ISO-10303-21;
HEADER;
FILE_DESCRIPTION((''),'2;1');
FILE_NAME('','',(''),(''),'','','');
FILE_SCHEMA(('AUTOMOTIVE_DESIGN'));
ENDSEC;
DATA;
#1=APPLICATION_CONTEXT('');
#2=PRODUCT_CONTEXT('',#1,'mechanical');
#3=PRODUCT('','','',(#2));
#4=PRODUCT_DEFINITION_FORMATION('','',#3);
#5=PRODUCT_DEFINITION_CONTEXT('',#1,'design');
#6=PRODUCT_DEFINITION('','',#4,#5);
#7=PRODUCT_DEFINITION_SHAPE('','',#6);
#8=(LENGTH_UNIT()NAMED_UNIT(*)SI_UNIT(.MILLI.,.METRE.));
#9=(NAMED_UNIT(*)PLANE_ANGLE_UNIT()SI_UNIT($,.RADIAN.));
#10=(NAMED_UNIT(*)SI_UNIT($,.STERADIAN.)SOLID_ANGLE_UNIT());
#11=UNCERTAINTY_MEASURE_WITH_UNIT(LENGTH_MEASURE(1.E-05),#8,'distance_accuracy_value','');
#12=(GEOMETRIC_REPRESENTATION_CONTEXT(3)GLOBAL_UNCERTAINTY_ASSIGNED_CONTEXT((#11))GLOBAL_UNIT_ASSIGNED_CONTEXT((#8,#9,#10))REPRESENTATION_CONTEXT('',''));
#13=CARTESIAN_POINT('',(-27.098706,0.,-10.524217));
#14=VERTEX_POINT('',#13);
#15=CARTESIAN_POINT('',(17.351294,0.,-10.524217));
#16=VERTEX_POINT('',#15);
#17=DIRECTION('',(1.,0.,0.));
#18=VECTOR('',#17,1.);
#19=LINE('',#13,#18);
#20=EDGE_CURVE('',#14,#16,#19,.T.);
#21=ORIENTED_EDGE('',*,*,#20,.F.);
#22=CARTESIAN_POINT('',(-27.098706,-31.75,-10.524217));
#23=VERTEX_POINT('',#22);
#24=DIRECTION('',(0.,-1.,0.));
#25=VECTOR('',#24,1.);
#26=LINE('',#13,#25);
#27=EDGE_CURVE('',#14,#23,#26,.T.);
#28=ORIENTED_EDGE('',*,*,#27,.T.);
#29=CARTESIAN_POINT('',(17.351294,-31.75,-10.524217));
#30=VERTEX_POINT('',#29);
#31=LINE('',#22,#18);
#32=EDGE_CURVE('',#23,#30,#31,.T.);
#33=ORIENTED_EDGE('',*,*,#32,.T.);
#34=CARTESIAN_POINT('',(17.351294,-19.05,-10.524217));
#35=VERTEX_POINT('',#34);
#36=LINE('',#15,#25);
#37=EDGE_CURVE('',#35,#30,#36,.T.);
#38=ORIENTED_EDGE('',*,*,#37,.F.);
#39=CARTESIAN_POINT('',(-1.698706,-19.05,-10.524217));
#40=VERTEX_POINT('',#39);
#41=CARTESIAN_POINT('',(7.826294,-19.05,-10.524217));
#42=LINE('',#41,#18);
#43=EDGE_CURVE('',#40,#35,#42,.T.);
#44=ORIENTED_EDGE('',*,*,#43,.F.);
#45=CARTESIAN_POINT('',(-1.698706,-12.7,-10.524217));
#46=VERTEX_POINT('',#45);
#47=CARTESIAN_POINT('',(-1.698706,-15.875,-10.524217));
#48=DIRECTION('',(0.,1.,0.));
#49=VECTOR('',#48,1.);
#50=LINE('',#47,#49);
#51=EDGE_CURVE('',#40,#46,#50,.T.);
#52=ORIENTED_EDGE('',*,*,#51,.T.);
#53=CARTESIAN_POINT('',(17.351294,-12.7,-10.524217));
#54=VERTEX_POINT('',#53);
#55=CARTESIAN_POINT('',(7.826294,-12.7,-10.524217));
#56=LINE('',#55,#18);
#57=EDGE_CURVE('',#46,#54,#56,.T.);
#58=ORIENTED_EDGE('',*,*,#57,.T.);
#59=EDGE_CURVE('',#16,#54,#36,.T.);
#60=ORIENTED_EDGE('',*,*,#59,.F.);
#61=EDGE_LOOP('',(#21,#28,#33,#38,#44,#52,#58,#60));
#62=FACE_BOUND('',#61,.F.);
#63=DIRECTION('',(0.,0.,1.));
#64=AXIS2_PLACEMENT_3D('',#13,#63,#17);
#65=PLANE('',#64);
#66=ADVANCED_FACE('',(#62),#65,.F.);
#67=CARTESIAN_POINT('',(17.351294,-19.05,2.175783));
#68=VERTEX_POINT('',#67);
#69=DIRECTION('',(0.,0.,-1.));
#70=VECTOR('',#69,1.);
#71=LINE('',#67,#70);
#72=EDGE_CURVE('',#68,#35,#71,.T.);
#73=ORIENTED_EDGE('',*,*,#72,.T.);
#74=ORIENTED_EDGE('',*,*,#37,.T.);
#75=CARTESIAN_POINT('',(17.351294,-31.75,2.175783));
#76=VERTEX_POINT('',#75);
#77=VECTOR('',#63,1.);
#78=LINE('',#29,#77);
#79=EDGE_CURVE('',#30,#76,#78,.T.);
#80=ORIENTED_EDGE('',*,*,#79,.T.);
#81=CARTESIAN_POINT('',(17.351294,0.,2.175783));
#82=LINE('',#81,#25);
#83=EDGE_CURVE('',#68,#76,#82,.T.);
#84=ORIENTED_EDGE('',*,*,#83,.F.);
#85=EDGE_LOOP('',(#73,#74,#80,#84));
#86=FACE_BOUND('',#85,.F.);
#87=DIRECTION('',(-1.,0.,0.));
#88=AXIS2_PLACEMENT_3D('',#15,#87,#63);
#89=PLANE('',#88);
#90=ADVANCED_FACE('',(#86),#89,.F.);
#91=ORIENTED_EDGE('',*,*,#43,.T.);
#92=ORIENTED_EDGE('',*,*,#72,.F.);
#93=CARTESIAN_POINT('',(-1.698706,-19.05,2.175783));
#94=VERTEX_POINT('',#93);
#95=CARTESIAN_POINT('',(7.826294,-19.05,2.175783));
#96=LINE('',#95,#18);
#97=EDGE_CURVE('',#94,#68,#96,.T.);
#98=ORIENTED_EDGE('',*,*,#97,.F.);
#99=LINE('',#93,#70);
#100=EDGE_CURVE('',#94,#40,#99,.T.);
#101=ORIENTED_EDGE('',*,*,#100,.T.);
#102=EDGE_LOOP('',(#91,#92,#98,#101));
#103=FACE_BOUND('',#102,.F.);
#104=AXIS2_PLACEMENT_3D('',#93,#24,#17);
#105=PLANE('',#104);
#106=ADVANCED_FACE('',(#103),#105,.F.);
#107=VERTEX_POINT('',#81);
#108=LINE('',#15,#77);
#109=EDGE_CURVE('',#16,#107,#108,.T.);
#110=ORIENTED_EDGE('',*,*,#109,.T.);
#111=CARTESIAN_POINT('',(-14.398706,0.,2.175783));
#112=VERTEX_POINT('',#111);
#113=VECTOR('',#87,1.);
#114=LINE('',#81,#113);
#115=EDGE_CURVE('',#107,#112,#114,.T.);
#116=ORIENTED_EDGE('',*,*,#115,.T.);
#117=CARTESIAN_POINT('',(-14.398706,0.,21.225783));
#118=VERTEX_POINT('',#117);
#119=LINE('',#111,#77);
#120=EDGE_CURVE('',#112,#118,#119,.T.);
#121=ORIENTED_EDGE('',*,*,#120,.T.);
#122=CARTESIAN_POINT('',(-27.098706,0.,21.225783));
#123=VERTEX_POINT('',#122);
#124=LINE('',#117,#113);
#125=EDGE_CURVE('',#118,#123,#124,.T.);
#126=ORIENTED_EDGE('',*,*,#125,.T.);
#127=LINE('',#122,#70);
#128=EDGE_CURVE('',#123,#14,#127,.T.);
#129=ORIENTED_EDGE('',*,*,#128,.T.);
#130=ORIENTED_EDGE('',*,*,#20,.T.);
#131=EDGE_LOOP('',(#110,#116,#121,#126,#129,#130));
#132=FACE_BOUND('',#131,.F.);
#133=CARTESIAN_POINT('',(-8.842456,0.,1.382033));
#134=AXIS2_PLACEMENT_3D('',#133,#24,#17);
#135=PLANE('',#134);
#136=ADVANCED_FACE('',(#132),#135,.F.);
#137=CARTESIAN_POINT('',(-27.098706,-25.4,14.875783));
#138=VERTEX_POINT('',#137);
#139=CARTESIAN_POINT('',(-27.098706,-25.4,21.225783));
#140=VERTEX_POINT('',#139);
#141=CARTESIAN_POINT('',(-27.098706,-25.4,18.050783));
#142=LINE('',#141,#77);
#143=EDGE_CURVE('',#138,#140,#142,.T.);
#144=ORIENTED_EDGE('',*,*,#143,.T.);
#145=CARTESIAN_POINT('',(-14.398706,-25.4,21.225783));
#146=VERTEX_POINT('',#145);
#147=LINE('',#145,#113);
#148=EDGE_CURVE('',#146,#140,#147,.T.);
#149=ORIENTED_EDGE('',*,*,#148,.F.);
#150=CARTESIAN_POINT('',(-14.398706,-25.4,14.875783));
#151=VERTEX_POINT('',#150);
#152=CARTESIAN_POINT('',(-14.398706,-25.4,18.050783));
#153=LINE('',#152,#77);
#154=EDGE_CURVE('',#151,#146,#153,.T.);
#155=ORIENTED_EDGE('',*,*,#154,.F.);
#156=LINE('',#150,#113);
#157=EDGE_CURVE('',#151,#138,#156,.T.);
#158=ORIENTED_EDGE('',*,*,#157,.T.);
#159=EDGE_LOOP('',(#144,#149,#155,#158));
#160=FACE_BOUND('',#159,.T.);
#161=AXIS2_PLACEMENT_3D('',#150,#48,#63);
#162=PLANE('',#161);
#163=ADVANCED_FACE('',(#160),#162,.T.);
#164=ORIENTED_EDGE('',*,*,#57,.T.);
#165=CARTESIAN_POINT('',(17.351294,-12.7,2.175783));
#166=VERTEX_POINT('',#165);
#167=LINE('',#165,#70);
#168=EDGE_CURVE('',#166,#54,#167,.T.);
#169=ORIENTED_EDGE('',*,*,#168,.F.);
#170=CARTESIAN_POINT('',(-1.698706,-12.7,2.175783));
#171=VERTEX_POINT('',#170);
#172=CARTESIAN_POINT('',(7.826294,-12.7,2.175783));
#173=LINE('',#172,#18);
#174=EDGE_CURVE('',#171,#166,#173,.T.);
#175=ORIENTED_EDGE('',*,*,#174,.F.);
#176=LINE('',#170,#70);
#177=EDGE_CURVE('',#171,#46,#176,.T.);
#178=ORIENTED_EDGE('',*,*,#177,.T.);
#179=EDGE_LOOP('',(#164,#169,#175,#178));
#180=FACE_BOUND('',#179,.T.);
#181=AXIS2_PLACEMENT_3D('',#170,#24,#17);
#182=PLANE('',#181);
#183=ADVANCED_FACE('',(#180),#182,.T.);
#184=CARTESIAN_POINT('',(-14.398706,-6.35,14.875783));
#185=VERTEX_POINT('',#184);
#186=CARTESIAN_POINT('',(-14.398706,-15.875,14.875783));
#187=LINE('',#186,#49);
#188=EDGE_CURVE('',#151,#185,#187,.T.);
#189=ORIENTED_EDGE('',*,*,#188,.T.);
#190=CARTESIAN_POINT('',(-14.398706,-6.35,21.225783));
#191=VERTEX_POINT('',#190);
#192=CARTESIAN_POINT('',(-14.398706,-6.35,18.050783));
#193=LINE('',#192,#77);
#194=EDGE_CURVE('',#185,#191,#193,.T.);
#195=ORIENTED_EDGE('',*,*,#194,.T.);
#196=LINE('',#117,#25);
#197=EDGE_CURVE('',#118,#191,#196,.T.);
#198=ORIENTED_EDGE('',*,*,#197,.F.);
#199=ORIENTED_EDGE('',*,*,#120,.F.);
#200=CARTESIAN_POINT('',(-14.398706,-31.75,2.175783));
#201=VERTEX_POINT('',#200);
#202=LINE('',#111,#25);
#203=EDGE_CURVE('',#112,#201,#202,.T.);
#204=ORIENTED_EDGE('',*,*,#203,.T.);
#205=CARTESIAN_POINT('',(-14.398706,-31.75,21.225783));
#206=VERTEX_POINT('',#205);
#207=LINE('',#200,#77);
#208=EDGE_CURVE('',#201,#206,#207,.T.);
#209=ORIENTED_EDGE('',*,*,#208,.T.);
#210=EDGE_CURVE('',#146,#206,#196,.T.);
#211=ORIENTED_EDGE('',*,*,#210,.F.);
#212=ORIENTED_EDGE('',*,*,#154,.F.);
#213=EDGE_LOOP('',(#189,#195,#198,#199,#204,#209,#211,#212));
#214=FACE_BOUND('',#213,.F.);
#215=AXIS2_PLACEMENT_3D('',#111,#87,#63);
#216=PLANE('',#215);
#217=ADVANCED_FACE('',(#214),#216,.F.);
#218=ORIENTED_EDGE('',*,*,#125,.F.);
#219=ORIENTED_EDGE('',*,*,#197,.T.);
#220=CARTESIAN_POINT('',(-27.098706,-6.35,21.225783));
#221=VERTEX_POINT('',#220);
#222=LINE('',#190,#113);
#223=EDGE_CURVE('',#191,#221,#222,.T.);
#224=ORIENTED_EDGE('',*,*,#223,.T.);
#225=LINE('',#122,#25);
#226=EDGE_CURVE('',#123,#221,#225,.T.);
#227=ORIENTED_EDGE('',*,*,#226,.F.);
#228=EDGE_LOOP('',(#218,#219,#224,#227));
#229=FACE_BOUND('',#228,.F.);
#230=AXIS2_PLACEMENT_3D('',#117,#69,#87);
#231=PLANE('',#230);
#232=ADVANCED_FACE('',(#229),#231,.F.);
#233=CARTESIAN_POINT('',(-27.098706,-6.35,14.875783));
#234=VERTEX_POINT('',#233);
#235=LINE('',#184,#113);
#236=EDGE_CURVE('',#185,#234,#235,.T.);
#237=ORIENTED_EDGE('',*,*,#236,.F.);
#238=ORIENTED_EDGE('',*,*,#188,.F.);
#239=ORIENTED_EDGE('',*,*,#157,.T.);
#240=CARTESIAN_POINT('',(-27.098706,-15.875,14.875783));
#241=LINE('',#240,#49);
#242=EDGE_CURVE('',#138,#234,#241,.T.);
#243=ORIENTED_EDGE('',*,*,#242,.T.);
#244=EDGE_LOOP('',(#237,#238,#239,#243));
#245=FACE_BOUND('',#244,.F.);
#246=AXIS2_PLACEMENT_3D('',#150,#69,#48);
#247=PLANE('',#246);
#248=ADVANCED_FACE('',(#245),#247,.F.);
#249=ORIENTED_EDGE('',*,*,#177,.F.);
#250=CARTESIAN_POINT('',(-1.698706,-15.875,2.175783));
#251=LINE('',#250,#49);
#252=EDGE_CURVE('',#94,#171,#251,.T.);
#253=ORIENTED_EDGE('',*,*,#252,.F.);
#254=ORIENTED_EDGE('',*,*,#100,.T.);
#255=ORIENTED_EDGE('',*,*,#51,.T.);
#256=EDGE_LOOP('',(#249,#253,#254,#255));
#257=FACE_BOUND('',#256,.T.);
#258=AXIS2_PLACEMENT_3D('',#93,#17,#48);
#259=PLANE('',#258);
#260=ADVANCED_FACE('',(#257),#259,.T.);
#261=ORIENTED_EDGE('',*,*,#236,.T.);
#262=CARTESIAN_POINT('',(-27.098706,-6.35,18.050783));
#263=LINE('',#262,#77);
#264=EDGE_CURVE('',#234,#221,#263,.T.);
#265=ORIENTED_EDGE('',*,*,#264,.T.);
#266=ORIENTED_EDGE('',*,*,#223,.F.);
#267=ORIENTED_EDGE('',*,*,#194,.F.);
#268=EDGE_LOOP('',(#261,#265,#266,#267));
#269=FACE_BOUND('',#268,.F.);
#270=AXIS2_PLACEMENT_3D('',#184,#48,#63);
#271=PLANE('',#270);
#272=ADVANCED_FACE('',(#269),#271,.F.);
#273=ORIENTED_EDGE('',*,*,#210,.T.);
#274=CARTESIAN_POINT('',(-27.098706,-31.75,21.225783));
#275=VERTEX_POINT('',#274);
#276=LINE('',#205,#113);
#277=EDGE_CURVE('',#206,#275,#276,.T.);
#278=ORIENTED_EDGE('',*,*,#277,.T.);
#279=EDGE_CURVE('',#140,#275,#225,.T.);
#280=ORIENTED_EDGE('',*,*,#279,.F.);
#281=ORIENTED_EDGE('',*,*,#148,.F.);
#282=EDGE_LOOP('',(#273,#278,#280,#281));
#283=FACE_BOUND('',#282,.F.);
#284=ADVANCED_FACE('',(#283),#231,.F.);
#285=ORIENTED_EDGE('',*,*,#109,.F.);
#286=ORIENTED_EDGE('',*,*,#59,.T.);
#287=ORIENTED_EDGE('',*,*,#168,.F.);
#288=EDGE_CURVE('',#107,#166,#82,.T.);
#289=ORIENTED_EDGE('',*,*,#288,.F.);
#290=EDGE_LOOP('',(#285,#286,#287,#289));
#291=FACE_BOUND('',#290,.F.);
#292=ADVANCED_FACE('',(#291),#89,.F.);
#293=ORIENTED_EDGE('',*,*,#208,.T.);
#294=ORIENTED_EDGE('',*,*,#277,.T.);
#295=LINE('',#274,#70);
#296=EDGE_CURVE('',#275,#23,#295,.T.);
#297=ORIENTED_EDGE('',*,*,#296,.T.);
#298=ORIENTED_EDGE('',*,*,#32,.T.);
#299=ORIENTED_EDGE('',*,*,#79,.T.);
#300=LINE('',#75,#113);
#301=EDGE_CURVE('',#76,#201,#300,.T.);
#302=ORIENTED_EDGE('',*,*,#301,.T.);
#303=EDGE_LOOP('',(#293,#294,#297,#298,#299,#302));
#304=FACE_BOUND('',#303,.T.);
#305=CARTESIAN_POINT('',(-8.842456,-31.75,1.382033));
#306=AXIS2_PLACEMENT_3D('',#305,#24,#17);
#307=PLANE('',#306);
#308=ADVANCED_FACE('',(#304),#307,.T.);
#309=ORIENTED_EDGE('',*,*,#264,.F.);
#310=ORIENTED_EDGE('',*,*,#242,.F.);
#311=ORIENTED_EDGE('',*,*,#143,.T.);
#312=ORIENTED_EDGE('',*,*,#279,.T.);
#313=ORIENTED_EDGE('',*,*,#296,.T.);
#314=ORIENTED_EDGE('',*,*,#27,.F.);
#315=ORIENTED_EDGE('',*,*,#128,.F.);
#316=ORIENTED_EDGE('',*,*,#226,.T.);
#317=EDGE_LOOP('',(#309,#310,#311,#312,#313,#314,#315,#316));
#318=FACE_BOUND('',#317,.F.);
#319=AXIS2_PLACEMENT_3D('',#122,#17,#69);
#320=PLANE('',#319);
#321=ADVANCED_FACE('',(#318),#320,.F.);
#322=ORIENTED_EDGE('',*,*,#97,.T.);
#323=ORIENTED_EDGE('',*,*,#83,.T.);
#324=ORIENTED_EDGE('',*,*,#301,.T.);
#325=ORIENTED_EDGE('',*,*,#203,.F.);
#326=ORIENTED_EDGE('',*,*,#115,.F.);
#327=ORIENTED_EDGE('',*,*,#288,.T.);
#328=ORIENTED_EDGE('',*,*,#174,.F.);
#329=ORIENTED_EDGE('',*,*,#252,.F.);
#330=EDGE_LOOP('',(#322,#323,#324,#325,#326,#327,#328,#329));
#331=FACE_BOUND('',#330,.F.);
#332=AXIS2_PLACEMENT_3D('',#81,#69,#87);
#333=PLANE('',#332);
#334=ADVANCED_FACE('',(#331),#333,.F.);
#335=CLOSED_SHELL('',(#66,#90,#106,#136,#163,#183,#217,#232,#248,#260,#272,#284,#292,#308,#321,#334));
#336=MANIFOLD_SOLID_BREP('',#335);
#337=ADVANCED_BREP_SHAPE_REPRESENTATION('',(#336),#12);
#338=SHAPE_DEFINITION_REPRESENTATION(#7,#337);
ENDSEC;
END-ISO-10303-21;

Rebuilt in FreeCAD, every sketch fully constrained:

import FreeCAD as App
import Part
import Sketcher

V = App.Vector
Q = App.Units.Quantity

doc = App.newDocument("Part")
body = doc.addObject("PartDesign::Body", "Body")

# Sketch on XZ plane
sketch1 = doc.addObject("Sketcher::SketchObject", "Sketch")
body.addObject(sketch1)
sketch1.AttachmentSupport = (doc.XZ_Plane, [""])
sketch1.MapMode = "FlatFace"
sketch1.addGeometry([
    Part.LineSegment(V(-14, 21, 0), V(-27, 21, 0)),  # 0
    Part.LineSegment(V(-27, 21, 0), V(-27, -11, 0)),  # 1
    Part.LineSegment(V(-27, -11, 0), V(17, -11, 0)),  # 2
    Part.LineSegment(V(17, -11, 0), V(17, 2, 0)),  # 3
    Part.LineSegment(V(17, 2, 0), V(-14, 2, 0)),  # 4
    Part.LineSegment(V(-14, 2, 0), V(-14, 21, 0)),  # 5
], False)
sketch1.addConstraint([
    Sketcher.Constraint("Coincident", 0, 2, 1, 1),
    Sketcher.Constraint("Coincident", 1, 2, 2, 1),
    Sketcher.Constraint("Coincident", 2, 2, 3, 1),
    Sketcher.Constraint("Coincident", 3, 2, 4, 1),
    Sketcher.Constraint("Coincident", 4, 2, 5, 1),
    Sketcher.Constraint("Coincident", 5, 2, 0, 1),
    Sketcher.Constraint("Horizontal", 0),
    Sketcher.Constraint("Vertical", 1),
    Sketcher.Constraint("Horizontal", 2),
    Sketcher.Constraint("Vertical", 3),
    Sketcher.Constraint("Horizontal", 4),
    Sketcher.Constraint("Vertical", 5),
    Sketcher.Constraint("Equal", 4, 1),
    Sketcher.Constraint("Equal", 0, 3),
    Sketcher.Constraint("DistanceX", 0, 2, 0, 1, Q("0.5 in")),
    Sketcher.Constraint("DistanceX", 2, 1, 2, 2, Q("1.75 in")),
    Sketcher.Constraint("DistanceX", 0, 2, -1, 1, Q("27.098706 mm")),
    Sketcher.Constraint("DistanceY", -1, 1, 0, 2, Q("21.225783 mm")),
])
pad1 = doc.addObject("PartDesign::Pad", "Pad")
body.addObject(pad1)
pad1.Profile = sketch1
pad1.Length = Q("1.25 in")

# Sketch on XY plane
sketch2 = doc.addObject("Sketcher::SketchObject", "Sketch001")
body.addObject(sketch2)
sketch2.AttachmentSupport = (doc.XY_Plane, [""])
sketch2.MapMode = "FlatFace"
sketch2.AttachmentOffset = App.Placement(V(0, 0, 2.175783), App.Rotation())
sketch2.addGeometry([
    Part.LineSegment(V(-2, -13, 0), V(-2, -19, 0)),
    Part.LineSegment(V(-2, -19, 0), V(17, -19, 0)),
    Part.LineSegment(V(17, -19, 0), V(17, -13, 0)),
    Part.LineSegment(V(17, -13, 0), V(-2, -13, 0)),
], False)
sketch2.addConstraint([
    Sketcher.Constraint("Coincident", 0, 2, 1, 1),
    Sketcher.Constraint("Coincident", 1, 2, 2, 1),
    Sketcher.Constraint("Coincident", 2, 2, 3, 1),
    Sketcher.Constraint("Coincident", 3, 2, 0, 1),
    Sketcher.Constraint("Vertical", 0),
    Sketcher.Constraint("Horizontal", 1),
    Sketcher.Constraint("Vertical", 2),
    Sketcher.Constraint("Horizontal", 3),
    Sketcher.Constraint("DistanceX", 1, 1, 1, 2, Q("0.75 in")),
    Sketcher.Constraint("DistanceY", 0, 2, 0, 1, Q("0.25 in")),
    Sketcher.Constraint("DistanceY", 2, 2, -1, 1, Q("0.5 in")),
    Sketcher.Constraint("DistanceX", 0, 2, -1, 1, Q("1.698706 mm")),
])
pocket1 = doc.addObject("PartDesign::Pocket", "Pocket")
body.addObject(pocket1)
pocket1.Profile = sketch2
pocket1.Length = Q("0.5 in")

# Sketch on YZ plane
sketch3 = doc.addObject("Sketcher::SketchObject", "Sketch002")
body.addObject(sketch3)
sketch3.AttachmentSupport = (doc.YZ_Plane, [""])
sketch3.MapMode = "FlatFace"
sketch3.AttachmentOffset = App.Placement(V(0, 0, -14.398706), App.Rotation())
sketch3.addGeometry([
    Part.LineSegment(V(-25, 21, 0), V(-25, 15, 0)),
    Part.LineSegment(V(-25, 15, 0), V(-6, 15, 0)),
    Part.LineSegment(V(-6, 15, 0), V(-6, 21, 0)),
    Part.LineSegment(V(-6, 21, 0), V(-25, 21, 0)),
], False)
sketch3.addConstraint([
    Sketcher.Constraint("Coincident", 0, 2, 1, 1),
    Sketcher.Constraint("Coincident", 1, 2, 2, 1),
    Sketcher.Constraint("Coincident", 2, 2, 3, 1),
    Sketcher.Constraint("Coincident", 3, 2, 0, 1),
    Sketcher.Constraint("Vertical", 0),
    Sketcher.Constraint("Horizontal", 1),
    Sketcher.Constraint("Vertical", 2),
    Sketcher.Constraint("Horizontal", 3),
    Sketcher.Constraint("DistanceX", 0, 2, -1, 1, Q("1 in")),
    Sketcher.Constraint("DistanceX", 1, 1, 1, 2, Q("0.75 in")),
    Sketcher.Constraint("DistanceY", 0, 2, 0, 1, Q("0.25 in")),
    Sketcher.Constraint("DistanceY", -1, 1, 0, 2, Q("14.875783 mm")),
])
pocket2 = doc.addObject("PartDesign::Pocket", "Pocket001")
body.addObject(pocket2)
pocket2.Profile = sketch3
pocket2.Length = Q("0.5 in")

doc.recompute()
